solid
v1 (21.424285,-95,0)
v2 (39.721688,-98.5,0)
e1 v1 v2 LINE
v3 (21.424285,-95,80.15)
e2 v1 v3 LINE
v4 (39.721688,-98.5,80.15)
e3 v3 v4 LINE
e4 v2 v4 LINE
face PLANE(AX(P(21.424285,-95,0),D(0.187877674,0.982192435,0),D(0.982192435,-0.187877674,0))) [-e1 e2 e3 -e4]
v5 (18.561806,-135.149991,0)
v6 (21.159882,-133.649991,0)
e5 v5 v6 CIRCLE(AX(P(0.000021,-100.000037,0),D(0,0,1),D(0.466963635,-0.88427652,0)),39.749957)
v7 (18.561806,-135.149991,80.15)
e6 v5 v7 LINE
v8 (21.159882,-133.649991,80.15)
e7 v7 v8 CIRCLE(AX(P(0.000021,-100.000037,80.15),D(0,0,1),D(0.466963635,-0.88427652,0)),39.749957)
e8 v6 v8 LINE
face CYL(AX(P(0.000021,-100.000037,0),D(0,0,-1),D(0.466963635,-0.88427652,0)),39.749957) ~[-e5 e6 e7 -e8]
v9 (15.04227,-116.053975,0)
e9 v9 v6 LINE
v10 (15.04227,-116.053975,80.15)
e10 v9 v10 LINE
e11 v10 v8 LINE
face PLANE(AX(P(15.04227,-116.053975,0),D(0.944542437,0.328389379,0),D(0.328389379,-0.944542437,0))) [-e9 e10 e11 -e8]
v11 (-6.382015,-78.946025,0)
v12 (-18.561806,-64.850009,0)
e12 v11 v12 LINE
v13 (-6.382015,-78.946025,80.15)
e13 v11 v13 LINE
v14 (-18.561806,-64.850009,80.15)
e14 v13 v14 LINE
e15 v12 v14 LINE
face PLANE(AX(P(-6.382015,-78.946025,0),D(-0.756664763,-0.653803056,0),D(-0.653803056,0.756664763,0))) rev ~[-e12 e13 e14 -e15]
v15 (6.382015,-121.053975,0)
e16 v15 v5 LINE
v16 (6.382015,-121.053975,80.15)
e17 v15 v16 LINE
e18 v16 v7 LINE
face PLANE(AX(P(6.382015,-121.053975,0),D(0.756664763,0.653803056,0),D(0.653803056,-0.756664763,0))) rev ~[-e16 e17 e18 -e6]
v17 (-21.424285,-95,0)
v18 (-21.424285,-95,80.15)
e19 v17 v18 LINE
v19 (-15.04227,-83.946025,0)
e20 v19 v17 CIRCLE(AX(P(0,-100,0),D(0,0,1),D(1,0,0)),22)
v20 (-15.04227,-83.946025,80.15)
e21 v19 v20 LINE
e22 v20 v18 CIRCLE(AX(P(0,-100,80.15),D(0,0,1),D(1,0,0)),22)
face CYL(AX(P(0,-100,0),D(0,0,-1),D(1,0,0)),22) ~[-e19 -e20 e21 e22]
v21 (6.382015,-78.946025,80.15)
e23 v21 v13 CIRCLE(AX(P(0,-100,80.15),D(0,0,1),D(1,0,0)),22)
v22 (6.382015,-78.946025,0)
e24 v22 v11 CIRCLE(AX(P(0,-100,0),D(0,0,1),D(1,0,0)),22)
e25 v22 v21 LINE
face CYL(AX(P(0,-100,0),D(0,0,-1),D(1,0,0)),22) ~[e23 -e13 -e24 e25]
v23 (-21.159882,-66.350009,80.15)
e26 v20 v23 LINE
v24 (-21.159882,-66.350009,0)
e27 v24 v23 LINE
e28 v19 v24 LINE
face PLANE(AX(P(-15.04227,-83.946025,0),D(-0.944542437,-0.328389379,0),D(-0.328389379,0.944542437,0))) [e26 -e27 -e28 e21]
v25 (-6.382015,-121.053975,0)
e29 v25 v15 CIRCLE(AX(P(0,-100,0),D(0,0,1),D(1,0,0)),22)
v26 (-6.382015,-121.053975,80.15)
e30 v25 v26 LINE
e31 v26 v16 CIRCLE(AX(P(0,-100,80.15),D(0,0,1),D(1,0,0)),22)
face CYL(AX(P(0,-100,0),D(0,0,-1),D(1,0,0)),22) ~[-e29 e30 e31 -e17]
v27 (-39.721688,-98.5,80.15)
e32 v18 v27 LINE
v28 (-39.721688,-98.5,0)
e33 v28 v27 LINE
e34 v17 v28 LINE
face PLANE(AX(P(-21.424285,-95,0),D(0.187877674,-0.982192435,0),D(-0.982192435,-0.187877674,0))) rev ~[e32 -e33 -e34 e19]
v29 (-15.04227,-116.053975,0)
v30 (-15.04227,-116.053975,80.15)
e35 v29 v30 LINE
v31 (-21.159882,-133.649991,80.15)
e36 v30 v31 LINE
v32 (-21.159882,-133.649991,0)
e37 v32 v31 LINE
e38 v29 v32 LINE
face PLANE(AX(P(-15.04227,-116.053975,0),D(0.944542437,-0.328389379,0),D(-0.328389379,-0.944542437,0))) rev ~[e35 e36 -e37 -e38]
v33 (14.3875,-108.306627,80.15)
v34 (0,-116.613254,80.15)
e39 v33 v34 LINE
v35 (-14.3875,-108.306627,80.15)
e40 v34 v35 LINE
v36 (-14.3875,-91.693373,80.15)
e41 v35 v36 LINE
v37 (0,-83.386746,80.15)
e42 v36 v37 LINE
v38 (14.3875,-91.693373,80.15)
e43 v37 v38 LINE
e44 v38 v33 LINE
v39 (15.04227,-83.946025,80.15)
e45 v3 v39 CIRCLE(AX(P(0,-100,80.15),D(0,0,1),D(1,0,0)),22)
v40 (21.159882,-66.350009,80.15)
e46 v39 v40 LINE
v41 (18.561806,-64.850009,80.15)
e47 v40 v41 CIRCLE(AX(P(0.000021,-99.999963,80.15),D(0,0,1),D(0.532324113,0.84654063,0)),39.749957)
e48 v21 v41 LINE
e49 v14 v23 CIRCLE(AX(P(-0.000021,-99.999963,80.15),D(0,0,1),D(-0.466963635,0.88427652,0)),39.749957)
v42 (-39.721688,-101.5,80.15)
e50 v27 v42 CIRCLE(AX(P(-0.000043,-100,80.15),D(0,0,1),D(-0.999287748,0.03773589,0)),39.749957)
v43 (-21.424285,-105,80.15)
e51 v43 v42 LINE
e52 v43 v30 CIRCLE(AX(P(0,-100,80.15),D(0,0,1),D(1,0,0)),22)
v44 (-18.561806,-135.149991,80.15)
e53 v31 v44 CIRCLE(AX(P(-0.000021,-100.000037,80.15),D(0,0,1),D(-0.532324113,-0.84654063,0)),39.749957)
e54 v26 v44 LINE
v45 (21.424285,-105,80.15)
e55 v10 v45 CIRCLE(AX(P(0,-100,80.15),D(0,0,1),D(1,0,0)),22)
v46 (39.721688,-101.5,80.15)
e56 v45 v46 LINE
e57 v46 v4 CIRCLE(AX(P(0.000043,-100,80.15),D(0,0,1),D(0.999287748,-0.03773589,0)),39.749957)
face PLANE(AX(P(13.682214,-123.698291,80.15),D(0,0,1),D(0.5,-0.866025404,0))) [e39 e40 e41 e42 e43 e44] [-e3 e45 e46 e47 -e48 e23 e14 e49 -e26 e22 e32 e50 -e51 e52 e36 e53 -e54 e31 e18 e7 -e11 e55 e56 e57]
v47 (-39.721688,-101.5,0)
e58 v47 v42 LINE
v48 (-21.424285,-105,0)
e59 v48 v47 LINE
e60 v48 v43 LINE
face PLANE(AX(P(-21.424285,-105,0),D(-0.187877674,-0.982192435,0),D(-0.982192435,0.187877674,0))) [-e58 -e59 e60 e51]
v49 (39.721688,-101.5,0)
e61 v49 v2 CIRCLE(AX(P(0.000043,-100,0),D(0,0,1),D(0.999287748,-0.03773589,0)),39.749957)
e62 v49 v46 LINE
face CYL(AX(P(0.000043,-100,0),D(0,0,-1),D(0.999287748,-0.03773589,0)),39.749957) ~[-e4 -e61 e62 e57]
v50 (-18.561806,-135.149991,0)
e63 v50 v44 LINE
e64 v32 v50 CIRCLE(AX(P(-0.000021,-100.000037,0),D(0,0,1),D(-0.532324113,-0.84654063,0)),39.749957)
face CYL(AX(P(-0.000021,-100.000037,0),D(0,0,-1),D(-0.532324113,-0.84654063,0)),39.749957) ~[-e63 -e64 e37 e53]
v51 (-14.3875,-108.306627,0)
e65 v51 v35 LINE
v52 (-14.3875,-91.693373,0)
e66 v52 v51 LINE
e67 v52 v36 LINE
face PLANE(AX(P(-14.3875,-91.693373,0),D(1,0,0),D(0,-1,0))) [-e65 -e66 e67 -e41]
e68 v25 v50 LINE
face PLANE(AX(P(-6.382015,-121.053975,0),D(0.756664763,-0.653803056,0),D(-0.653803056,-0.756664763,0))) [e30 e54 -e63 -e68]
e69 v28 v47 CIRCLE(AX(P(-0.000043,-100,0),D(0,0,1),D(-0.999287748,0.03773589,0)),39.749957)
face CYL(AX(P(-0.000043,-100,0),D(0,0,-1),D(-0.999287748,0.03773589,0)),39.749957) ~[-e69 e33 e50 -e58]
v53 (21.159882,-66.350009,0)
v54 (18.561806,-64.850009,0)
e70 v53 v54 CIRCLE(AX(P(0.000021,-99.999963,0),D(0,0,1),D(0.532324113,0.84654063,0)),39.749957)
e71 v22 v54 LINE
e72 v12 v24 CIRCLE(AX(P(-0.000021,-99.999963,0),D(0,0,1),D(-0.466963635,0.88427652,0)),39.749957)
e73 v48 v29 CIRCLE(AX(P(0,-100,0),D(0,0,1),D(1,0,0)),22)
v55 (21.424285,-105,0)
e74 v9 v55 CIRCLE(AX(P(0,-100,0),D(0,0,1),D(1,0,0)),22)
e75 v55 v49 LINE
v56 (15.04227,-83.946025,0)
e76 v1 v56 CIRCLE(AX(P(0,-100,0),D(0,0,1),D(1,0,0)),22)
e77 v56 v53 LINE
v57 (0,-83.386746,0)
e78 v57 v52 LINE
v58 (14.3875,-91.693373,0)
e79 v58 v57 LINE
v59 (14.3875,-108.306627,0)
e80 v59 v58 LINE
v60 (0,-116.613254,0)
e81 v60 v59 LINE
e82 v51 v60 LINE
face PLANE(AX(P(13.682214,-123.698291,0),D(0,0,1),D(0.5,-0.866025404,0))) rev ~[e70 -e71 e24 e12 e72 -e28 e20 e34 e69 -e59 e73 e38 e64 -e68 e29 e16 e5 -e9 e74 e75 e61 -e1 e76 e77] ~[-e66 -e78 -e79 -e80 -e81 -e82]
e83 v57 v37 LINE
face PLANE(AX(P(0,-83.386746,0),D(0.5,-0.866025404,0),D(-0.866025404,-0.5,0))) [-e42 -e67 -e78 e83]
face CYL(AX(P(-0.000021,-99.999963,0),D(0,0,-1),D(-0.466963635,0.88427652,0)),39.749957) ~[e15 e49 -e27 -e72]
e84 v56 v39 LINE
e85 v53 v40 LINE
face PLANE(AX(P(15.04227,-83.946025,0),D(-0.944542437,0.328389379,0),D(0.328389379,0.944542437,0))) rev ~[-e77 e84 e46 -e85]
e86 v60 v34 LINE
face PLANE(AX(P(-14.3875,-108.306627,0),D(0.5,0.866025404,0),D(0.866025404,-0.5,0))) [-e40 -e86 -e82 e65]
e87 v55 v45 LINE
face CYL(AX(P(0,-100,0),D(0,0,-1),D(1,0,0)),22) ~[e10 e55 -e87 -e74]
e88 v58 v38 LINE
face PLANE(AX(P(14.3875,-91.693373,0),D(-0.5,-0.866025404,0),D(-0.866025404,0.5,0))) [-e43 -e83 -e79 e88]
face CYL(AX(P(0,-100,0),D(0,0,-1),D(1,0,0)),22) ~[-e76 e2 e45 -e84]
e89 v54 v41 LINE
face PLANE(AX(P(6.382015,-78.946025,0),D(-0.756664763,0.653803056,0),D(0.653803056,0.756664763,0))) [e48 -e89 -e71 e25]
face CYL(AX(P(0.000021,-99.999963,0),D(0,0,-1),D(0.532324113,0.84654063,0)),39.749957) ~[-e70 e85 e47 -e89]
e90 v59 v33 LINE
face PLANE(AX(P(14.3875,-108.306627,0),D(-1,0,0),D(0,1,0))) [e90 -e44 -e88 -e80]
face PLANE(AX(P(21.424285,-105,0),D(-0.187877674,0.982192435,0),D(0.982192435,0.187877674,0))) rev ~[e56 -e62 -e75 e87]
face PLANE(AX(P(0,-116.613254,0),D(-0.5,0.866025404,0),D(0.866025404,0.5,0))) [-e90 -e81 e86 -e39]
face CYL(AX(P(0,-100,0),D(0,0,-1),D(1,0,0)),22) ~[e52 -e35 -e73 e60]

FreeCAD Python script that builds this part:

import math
import FreeCAD as App
import Part
import Sketcher
from FreeCAD import Vector
Q = App.Units.Quantity

doc = App.newDocument("Part")
body = doc.addObject("PartDesign::Body", "Body")

# Sketch on XY plane
sketch1 = body.newObject("Sketcher::SketchObject", "Sketch")
sketch1.AttachmentSupport = (doc.getObject("XY_Plane"), [""])
sketch1.MapMode = "FlatFace"
sketch1.addGeometry(Part.Circle(Vector(0, 0, 0), Vector(0, 0, 1), 22), False)
sketch1.addConstraint([
    Sketcher.Constraint("Coincident", 0, 3, -1, 1),
    Sketcher.Constraint("Diameter", 0, Q("44 mm")),
])
pad1 = body.newObject("PartDesign::Pad", "Pad")
pad1.Profile = sketch1
pad1.Length = 80.15

# Sketch on XY plane
sketch2 = body.newObject("Sketcher::SketchObject", "Sketch001")
sketch2.AttachmentSupport = (doc.getObject("XY_Plane"), [""])
sketch2.MapMode = "FlatFace"
sketch2.addGeometry([
    Part.ArcOfCircle(Part.Circle(Vector(0, 0, 0), Vector(0, 0, 1), 39.7), math.radians(-2.16), math.radians(2.16)),  # 0
    Part.LineSegment(Vector(39.7, 1.5, 0), Vector(21.4, 5, 0)),  # 1
    Part.LineSegment(Vector(21.4, 5, 0), Vector(14.7, 0, 0)),  # 2
    Part.LineSegment(Vector(14.7, 0, 0), Vector(21.4, -5, 0)),  # 3
    Part.LineSegment(Vector(21.4, -5, 0), Vector(39.7, -1.5, 0)),  # 4
], False)
sketch2.addConstraint([
    Sketcher.Constraint("Coincident", 0, 2, 1, 1),
    Sketcher.Constraint("Coincident", 1, 2, 2, 1),
    Sketcher.Constraint("Coincident", 2, 2, 3, 1),
    Sketcher.Constraint("Coincident", 3, 2, 4, 1),
    Sketcher.Constraint("Coincident", 4, 2, 0, 1),
    Sketcher.Constraint("Symmetric", 1, 2, 3, 2, -1),
    Sketcher.Constraint("Symmetric", 0, 2, 4, 2, -1),
    Sketcher.Constraint("PointOnObject", 2, 2, -1),
    Sketcher.Constraint("DistanceY", -1, 1, 1, 2, Q("5 mm")),
    Sketcher.Constraint("DistanceY", 4, 2, 0, 2, Q("3 mm")),
    Sketcher.Constraint("Radius", 0, Q("39.749957 mm")),
    Sketcher.Constraint("Distance", 2, Q("8.406272 mm")),
    Sketcher.Constraint("DistanceX", -1, 1, 0, 2, Q("39.721688 mm")),
    Sketcher.Constraint("DistanceX", 2, 2, 0, 2, Q("25.055021 mm")),
])
pad2 = body.newObject("PartDesign::Pad", "Pad001")
pad2.Profile = sketch2
pad2.Length = 80.15
doc.recompute()

polarpattern = body.newObject("PartDesign::PolarPattern", "PolarPattern")
polarpattern.Originals = [pad2]
polarpattern.Axis = (doc.getObject("Z_Axis"), [""])
polarpattern.Angle = 360
polarpattern.Occurrences = 6
body.Tip = polarpattern

# Sketch on XY plane
sketch3 = body.newObject("Sketcher::SketchObject", "Sketch002")
sketch3.AttachmentSupport = (doc.getObject("XY_Plane"), [""])
sketch3.MapMode = "FlatFace"
sketch3.addGeometry([
    Part.LineSegment(Vector(14, 8, 0), Vector(0, 17, 0)),  # 0
    Part.LineSegment(Vector(0, 17, 0), Vector(-14, 8, 0)),  # 1
    Part.LineSegment(Vector(-14, 8, 0), Vector(-14, -8, 0)),  # 2
    Part.LineSegment(Vector(-14, -8, 0), Vector(0, -17, 0)),  # 3
    Part.LineSegment(Vector(0, -17, 0), Vector(14, -8, 0)),  # 4
    Part.LineSegment(Vector(14, -8, 0), Vector(14, 8, 0)),  # 5
], False)
sketch3.addConstraint([
    Sketcher.Constraint("Coincident", 0, 2, 1, 1),
    Sketcher.Constraint("Coincident", 1, 2, 2, 1),
    Sketcher.Constraint("Coincident", 2, 2, 3, 1),
    Sketcher.Constraint("Coincident", 3, 2, 4, 1),
    Sketcher.Constraint("Coincident", 4, 2, 5, 1),
    Sketcher.Constraint("Coincident", 5, 2, 0, 1),
    Sketcher.Constraint("Vertical", 2),
    Sketcher.Constraint("Vertical", 5),
    Sketcher.Constraint("Symmetric", 0, 2, 3, 2, -1, 1),
    Sketcher.Constraint("Symmetric", 1, 2, 4, 2, -1, 1),
    Sketcher.Constraint("PointOnObject", 0, 2, -2),
    Sketcher.Constraint("Parallel", 0, 3),
    Sketcher.Constraint("Horizontal", 2, 2, 4, 2),
    Sketcher.Constraint("Angle", 0, Q("150 deg")),
    Sketcher.Constraint("DistanceX", 2, 2, 4, 2, Q("28.775 mm")),
    Sketcher.Constraint("DistanceY", 2, 2, 2, 1, Q("16.613254 mm")),
])
pocket1 = body.newObject("PartDesign::Pocket", "Pocket")
pocket1.Profile = sketch3
pocket1.Type = "ThroughAll"
pocket1.Reversed = True
body2 = doc.addObject("PartDesign::Body", "Body001")
doc.recompute()

body.Placement = App.Placement(Vector(0, -100, 0), App.Rotation(Vector(0, 0, 1), 0))
boolean = body2.newObject("PartDesign::Boolean", "Boolean")
boolean.Type = "Fuse"
boolean.addObjects([body])

doc.recompute()
